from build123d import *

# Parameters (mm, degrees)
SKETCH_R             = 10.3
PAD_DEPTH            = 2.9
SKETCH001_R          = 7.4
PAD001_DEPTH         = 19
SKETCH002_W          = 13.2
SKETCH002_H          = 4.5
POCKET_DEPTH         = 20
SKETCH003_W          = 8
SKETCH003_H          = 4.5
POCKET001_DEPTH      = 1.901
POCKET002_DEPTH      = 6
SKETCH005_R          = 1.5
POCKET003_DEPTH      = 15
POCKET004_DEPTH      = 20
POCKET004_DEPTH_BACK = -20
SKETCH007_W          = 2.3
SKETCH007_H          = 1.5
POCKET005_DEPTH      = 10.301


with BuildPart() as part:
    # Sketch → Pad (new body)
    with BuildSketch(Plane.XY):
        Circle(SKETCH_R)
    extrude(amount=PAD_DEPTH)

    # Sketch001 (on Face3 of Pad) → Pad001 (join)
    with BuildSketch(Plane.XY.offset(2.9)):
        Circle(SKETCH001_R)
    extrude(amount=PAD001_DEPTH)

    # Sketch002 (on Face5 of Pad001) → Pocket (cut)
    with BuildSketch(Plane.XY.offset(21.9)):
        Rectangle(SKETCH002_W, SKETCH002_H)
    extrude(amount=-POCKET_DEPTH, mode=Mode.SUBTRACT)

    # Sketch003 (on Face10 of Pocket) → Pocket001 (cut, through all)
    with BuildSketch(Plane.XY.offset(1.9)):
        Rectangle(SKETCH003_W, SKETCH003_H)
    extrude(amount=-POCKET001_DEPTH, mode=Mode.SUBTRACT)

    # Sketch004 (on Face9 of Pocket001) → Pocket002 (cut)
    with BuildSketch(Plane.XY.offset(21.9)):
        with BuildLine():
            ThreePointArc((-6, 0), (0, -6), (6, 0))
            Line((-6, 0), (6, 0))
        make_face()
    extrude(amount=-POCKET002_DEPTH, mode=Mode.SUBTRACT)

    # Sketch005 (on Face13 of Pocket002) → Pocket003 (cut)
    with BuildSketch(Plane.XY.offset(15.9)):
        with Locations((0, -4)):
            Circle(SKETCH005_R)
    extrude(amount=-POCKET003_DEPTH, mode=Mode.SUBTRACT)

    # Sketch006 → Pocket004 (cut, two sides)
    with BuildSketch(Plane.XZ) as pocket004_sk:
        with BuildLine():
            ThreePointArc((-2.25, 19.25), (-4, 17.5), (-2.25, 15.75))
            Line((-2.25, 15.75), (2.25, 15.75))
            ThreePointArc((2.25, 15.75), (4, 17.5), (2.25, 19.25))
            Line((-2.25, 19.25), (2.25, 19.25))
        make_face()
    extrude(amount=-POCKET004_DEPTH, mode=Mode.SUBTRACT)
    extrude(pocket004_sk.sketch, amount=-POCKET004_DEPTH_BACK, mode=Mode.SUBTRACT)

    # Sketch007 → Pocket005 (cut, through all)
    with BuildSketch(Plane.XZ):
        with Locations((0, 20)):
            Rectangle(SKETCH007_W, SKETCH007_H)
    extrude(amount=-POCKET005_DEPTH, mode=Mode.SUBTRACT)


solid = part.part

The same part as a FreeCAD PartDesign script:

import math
import FreeCAD as App
import Part
import Sketcher
Q = App.Units.Quantity

doc = App.newDocument("Part")
body = doc.addObject("PartDesign::Body", "Body")

sketch1 = body.newObject("Sketcher::SketchObject", "Sketch")
sketch1.AttachmentSupport = (doc.getObject("XY_Plane"), [""])
sketch1.MapMode = "FlatFace"
sketch1.addGeometry(Part.Circle(App.Vector(0, 0, 0), App.Vector(0, 0, 1), 10), False)
sketch1.addConstraint([
    Sketcher.Constraint("Coincident", 0, 3, -1, 1),
    Sketcher.Constraint("Diameter", 0, Q("20.6 mm")),
])
pad1 = body.newObject("PartDesign::Pad", "Pad")
pad1.Profile = sketch1
pad1.Length = 2.9

sketch2 = body.newObject("Sketcher::SketchObject", "Sketch001")
sketch2.AttachmentSupport = (doc.getObject("XY_Plane"), [""])
sketch2.MapMode = "FlatFace"
sketch2.AttachmentOffset = App.Placement(App.Vector(0, 0, 2.9), App.Rotation())
sketch2.addGeometry(Part.Circle(App.Vector(0, 0, 0), App.Vector(0, 0, 1), 7), False)
sketch2.addConstraint([
    Sketcher.Constraint("Coincident", 0, 3, -1, 1),
    Sketcher.Constraint("Diameter", 0, Q("14.8 mm")),
])
pad2 = body.newObject("PartDesign::Pad", "Pad001")
pad2.Profile = sketch2
pad2.Length = 19

sketch3 = body.newObject("Sketcher::SketchObject", "Sketch002")
sketch3.AttachmentSupport = (doc.getObject("XY_Plane"), [""])
sketch3.MapMode = "FlatFace"
sketch3.AttachmentOffset = App.Placement(App.Vector(0, 0, 21.9), App.Rotation())
sketch3.addGeometry([
    Part.LineSegment(App.Vector(-6.6, 2.2, 0), App.Vector(-6.6, -2.2, 0)),
    Part.LineSegment(App.Vector(-6.6, -2.2, 0), App.Vector(6.6, -2.2, 0)),
    Part.LineSegment(App.Vector(6.6, -2.2, 0), App.Vector(6.6, 2.2, 0)),
    Part.LineSegment(App.Vector(6.6, 2.2, 0), App.Vector(-6.6, 2.2, 0)),
], False)
sketch3.addConstraint([
    Sketcher.Constraint("Coincident", 0, 2, 1, 1),
    Sketcher.Constraint("Coincident", 1, 2, 2, 1),
    Sketcher.Constraint("Coincident", 2, 2, 3, 1),
    Sketcher.Constraint("Coincident", 3, 2, 0, 1),
    Sketcher.Constraint("Vertical", 0),
    Sketcher.Constraint("Horizontal", 1),
    Sketcher.Constraint("Vertical", 2),
    Sketcher.Constraint("Horizontal", 3),
    Sketcher.Constraint("Symmetric", 0, 2, 2, 2, -1, 1),
    Sketcher.Constraint("DistanceX", 1, 1, 1, 2, Q("13.2 mm")),
    Sketcher.Constraint("DistanceY", 0, 2, 0, 1, Q("4.5 mm")),
])
pocket1 = body.newObject("PartDesign::Pocket", "Pocket")
pocket1.Profile = sketch3
pocket1.Length = 20

sketch4 = body.newObject("Sketcher::SketchObject", "Sketch003")
sketch4.AttachmentSupport = (doc.getObject("XY_Plane"), [""])
sketch4.MapMode = "FlatFace"
sketch4.AttachmentOffset = App.Placement(App.Vector(0, 0, 1.9), App.Rotation())
sketch4.addGeometry([
    Part.LineSegment(App.Vector(-4, 2.2, 0), App.Vector(-4, -2.2, 0)),
    Part.LineSegment(App.Vector(-4, -2.2, 0), App.Vector(4, -2.2, 0)),
    Part.LineSegment(App.Vector(4, -2.2, 0), App.Vector(4, 2.2, 0)),
    Part.LineSegment(App.Vector(4, 2.2, 0), App.Vector(-4, 2.2, 0)),
], False)
sketch4.addConstraint([
    Sketcher.Constraint("Coincident", 0, 2, 1, 1),
    Sketcher.Constraint("Coincident", 1, 2, 2, 1),
    Sketcher.Constraint("Coincident", 2, 2, 3, 1),
    Sketcher.Constraint("Coincident", 3, 2, 0, 1),
    Sketcher.Constraint("Vertical", 0),
    Sketcher.Constraint("Horizontal", 1),
    Sketcher.Constraint("Vertical", 2),
    Sketcher.Constraint("Horizontal", 3),
    Sketcher.Constraint("Symmetric", 0, 2, 2, 2, -1, 1),
    Sketcher.Constraint("DistanceX", 1, 1, 1, 2, Q("8 mm")),
    Sketcher.Constraint("DistanceY", 0, 2, 0, 1, Q("4.5 mm")),
])
pocket2 = body.newObject("PartDesign::Pocket", "Pocket001")
pocket2.Profile = sketch4
pocket2.Type = "ThroughAll"

sketch5 = body.newObject("Sketcher::SketchObject", "Sketch004")
sketch5.AttachmentSupport = (doc.getObject("XY_Plane"), [""])
sketch5.MapMode = "FlatFace"
sketch5.AttachmentOffset = App.Placement(App.Vector(0, 0, 21.9), App.Rotation())
sketch5.addGeometry([
    Part.ArcOfCircle(Part.Circle(App.Vector(0, 0, 0), App.Vector(0, 0, 1), 6), math.radians(180), math.radians(360)),
    Part.LineSegment(App.Vector(6, 0, 0), App.Vector(-6, 0, 0)),
], False)
sketch5.addConstraint([
    Sketcher.Constraint("Coincident", 0, 1, 1, 2),
    Sketcher.Constraint("Coincident", 1, 1, 0, 2),
    Sketcher.Constraint("Horizontal", 1),
    Sketcher.Constraint("Coincident", 0, 3, -1, 1),
    Sketcher.Constraint("PointOnObject", 0, 1, -1),
    Sketcher.Constraint("Radius", 0, Q("6 mm")),
])
pocket3 = body.newObject("PartDesign::Pocket", "Pocket002")
pocket3.Profile = sketch5
pocket3.Length = 6

sketch6 = body.newObject("Sketcher::SketchObject", "Sketch005")
sketch6.AttachmentSupport = (doc.getObject("XY_Plane"), [""])
sketch6.MapMode = "FlatFace"
sketch6.AttachmentOffset = App.Placement(App.Vector(0, 0, 15.9), App.Rotation())
sketch6.addGeometry(Part.Circle(App.Vector(0, -4, 0), App.Vector(0, 0, 1), 1.5), False)
sketch6.addConstraint([
    Sketcher.Constraint("PointOnObject", 0, 3, -2),
    Sketcher.Constraint("Diameter", 0, Q("3 mm")),
    Sketcher.Constraint("DistanceY", 0, 3, -1, 1, Q("4 mm")),
])
pocket4 = body.newObject("PartDesign::Pocket", "Pocket003")
pocket4.Profile = sketch6
pocket4.Length = 15

sketch7 = body.newObject("Sketcher::SketchObject", "Sketch006")
sketch7.AttachmentSupport = (doc.getObject("XZ_Plane"), [""])
sketch7.MapMode = "FlatFace"
sketch7.addGeometry([
    Part.ArcOfCircle(Part.Circle(App.Vector(-2.2, 17.5, 0), App.Vector(0, 0, 1), 1.8), math.radians(90), math.radians(270)),
    Part.LineSegment(App.Vector(-2.2, 15.8, 0), App.Vector(2.2, 15.8, 0)),
    Part.ArcOfCircle(Part.Circle(App.Vector(2.2, 17.5, 0), App.Vector(0, 0, 1), 1.8), math.radians(-90), math.radians(90)),
    Part.LineSegment(App.Vector(2.2, 19.2, 0), App.Vector(-2.2, 19.2, 0)),
], False)
sketch7.addConstraint([
    Sketcher.Constraint("Tangent", 0, 2, 1, 1),
    Sketcher.Constraint("Tangent", 1, 2, 2, 1),
    Sketcher.Constraint("Tangent", 2, 2, 3, 1),
    Sketcher.Constraint("Tangent", 3, 2, 0, 1),
    Sketcher.Constraint("Horizontal", 1),
    Sketcher.Constraint("Horizontal", 3),
    Sketcher.Constraint("Radius", 0, Q("1.75 mm")),
    Sketcher.Constraint("DistanceX", 1, 1, 1, 2, Q("4.5 mm")),
    Sketcher.Constraint("DistanceY", -1, 1, 0, 3, Q("17.5 mm")),
    Sketcher.Constraint("DistanceX", 0, 3, -1, 1, Q("2.25 mm")),
])
pocket5 = body.newObject("PartDesign::Pocket", "Pocket004")
pocket5.Profile = sketch7
pocket5.Type = "ThroughAll"
pocket5.Midplane = True

sketch8 = body.newObject("Sketcher::SketchObject", "Sketch007")
sketch8.AttachmentSupport = (doc.getObject("XZ_Plane"), [""])
sketch8.MapMode = "FlatFace"
sketch8.addGeometry([
    Part.LineSegment(App.Vector(-1.1, 20.8, 0), App.Vector(-1.1, 19.2, 0)),
    Part.LineSegment(App.Vector(-1.1, 19.2, 0), App.Vector(1.1, 19.2, 0)),
    Part.LineSegment(App.Vector(1.1, 19.2, 0), App.Vector(1.1, 20.8, 0)),
    Part.LineSegment(App.Vector(1.1, 20.8, 0), App.Vector(-1.1, 20.8, 0)),
], False)
sketch8.addConstraint([
    Sketcher.Constraint("Coincident", 0, 2, 1, 1),
    Sketcher.Constraint("Coincident", 1, 2, 2, 1),
    Sketcher.Constraint("Coincident", 2, 2, 3, 1),
    Sketcher.Constraint("Coincident", 3, 2, 0, 1),
    Sketcher.Constraint("Vertical", 0),
    Sketcher.Constraint("Horizontal", 1),
    Sketcher.Constraint("Vertical", 2),
    Sketcher.Constraint("Horizontal", 3),
    Sketcher.Constraint("DistanceX", 1, 1, 1, 2, Q("2.3 mm")),
    Sketcher.Constraint("DistanceY", 0, 2, 0, 1, Q("1.5 mm")),
    Sketcher.Constraint("DistanceX", 0, 2, -1, 1, Q("1.15 mm")),
    Sketcher.Constraint("DistanceY", -1, 1, 0, 2, Q("19.25 mm")),
])
pocket6 = body.newObject("PartDesign::Pocket", "Pocket005")
pocket6.Profile = sketch8
pocket6.Type = "ThroughAll"

doc.recompute()
